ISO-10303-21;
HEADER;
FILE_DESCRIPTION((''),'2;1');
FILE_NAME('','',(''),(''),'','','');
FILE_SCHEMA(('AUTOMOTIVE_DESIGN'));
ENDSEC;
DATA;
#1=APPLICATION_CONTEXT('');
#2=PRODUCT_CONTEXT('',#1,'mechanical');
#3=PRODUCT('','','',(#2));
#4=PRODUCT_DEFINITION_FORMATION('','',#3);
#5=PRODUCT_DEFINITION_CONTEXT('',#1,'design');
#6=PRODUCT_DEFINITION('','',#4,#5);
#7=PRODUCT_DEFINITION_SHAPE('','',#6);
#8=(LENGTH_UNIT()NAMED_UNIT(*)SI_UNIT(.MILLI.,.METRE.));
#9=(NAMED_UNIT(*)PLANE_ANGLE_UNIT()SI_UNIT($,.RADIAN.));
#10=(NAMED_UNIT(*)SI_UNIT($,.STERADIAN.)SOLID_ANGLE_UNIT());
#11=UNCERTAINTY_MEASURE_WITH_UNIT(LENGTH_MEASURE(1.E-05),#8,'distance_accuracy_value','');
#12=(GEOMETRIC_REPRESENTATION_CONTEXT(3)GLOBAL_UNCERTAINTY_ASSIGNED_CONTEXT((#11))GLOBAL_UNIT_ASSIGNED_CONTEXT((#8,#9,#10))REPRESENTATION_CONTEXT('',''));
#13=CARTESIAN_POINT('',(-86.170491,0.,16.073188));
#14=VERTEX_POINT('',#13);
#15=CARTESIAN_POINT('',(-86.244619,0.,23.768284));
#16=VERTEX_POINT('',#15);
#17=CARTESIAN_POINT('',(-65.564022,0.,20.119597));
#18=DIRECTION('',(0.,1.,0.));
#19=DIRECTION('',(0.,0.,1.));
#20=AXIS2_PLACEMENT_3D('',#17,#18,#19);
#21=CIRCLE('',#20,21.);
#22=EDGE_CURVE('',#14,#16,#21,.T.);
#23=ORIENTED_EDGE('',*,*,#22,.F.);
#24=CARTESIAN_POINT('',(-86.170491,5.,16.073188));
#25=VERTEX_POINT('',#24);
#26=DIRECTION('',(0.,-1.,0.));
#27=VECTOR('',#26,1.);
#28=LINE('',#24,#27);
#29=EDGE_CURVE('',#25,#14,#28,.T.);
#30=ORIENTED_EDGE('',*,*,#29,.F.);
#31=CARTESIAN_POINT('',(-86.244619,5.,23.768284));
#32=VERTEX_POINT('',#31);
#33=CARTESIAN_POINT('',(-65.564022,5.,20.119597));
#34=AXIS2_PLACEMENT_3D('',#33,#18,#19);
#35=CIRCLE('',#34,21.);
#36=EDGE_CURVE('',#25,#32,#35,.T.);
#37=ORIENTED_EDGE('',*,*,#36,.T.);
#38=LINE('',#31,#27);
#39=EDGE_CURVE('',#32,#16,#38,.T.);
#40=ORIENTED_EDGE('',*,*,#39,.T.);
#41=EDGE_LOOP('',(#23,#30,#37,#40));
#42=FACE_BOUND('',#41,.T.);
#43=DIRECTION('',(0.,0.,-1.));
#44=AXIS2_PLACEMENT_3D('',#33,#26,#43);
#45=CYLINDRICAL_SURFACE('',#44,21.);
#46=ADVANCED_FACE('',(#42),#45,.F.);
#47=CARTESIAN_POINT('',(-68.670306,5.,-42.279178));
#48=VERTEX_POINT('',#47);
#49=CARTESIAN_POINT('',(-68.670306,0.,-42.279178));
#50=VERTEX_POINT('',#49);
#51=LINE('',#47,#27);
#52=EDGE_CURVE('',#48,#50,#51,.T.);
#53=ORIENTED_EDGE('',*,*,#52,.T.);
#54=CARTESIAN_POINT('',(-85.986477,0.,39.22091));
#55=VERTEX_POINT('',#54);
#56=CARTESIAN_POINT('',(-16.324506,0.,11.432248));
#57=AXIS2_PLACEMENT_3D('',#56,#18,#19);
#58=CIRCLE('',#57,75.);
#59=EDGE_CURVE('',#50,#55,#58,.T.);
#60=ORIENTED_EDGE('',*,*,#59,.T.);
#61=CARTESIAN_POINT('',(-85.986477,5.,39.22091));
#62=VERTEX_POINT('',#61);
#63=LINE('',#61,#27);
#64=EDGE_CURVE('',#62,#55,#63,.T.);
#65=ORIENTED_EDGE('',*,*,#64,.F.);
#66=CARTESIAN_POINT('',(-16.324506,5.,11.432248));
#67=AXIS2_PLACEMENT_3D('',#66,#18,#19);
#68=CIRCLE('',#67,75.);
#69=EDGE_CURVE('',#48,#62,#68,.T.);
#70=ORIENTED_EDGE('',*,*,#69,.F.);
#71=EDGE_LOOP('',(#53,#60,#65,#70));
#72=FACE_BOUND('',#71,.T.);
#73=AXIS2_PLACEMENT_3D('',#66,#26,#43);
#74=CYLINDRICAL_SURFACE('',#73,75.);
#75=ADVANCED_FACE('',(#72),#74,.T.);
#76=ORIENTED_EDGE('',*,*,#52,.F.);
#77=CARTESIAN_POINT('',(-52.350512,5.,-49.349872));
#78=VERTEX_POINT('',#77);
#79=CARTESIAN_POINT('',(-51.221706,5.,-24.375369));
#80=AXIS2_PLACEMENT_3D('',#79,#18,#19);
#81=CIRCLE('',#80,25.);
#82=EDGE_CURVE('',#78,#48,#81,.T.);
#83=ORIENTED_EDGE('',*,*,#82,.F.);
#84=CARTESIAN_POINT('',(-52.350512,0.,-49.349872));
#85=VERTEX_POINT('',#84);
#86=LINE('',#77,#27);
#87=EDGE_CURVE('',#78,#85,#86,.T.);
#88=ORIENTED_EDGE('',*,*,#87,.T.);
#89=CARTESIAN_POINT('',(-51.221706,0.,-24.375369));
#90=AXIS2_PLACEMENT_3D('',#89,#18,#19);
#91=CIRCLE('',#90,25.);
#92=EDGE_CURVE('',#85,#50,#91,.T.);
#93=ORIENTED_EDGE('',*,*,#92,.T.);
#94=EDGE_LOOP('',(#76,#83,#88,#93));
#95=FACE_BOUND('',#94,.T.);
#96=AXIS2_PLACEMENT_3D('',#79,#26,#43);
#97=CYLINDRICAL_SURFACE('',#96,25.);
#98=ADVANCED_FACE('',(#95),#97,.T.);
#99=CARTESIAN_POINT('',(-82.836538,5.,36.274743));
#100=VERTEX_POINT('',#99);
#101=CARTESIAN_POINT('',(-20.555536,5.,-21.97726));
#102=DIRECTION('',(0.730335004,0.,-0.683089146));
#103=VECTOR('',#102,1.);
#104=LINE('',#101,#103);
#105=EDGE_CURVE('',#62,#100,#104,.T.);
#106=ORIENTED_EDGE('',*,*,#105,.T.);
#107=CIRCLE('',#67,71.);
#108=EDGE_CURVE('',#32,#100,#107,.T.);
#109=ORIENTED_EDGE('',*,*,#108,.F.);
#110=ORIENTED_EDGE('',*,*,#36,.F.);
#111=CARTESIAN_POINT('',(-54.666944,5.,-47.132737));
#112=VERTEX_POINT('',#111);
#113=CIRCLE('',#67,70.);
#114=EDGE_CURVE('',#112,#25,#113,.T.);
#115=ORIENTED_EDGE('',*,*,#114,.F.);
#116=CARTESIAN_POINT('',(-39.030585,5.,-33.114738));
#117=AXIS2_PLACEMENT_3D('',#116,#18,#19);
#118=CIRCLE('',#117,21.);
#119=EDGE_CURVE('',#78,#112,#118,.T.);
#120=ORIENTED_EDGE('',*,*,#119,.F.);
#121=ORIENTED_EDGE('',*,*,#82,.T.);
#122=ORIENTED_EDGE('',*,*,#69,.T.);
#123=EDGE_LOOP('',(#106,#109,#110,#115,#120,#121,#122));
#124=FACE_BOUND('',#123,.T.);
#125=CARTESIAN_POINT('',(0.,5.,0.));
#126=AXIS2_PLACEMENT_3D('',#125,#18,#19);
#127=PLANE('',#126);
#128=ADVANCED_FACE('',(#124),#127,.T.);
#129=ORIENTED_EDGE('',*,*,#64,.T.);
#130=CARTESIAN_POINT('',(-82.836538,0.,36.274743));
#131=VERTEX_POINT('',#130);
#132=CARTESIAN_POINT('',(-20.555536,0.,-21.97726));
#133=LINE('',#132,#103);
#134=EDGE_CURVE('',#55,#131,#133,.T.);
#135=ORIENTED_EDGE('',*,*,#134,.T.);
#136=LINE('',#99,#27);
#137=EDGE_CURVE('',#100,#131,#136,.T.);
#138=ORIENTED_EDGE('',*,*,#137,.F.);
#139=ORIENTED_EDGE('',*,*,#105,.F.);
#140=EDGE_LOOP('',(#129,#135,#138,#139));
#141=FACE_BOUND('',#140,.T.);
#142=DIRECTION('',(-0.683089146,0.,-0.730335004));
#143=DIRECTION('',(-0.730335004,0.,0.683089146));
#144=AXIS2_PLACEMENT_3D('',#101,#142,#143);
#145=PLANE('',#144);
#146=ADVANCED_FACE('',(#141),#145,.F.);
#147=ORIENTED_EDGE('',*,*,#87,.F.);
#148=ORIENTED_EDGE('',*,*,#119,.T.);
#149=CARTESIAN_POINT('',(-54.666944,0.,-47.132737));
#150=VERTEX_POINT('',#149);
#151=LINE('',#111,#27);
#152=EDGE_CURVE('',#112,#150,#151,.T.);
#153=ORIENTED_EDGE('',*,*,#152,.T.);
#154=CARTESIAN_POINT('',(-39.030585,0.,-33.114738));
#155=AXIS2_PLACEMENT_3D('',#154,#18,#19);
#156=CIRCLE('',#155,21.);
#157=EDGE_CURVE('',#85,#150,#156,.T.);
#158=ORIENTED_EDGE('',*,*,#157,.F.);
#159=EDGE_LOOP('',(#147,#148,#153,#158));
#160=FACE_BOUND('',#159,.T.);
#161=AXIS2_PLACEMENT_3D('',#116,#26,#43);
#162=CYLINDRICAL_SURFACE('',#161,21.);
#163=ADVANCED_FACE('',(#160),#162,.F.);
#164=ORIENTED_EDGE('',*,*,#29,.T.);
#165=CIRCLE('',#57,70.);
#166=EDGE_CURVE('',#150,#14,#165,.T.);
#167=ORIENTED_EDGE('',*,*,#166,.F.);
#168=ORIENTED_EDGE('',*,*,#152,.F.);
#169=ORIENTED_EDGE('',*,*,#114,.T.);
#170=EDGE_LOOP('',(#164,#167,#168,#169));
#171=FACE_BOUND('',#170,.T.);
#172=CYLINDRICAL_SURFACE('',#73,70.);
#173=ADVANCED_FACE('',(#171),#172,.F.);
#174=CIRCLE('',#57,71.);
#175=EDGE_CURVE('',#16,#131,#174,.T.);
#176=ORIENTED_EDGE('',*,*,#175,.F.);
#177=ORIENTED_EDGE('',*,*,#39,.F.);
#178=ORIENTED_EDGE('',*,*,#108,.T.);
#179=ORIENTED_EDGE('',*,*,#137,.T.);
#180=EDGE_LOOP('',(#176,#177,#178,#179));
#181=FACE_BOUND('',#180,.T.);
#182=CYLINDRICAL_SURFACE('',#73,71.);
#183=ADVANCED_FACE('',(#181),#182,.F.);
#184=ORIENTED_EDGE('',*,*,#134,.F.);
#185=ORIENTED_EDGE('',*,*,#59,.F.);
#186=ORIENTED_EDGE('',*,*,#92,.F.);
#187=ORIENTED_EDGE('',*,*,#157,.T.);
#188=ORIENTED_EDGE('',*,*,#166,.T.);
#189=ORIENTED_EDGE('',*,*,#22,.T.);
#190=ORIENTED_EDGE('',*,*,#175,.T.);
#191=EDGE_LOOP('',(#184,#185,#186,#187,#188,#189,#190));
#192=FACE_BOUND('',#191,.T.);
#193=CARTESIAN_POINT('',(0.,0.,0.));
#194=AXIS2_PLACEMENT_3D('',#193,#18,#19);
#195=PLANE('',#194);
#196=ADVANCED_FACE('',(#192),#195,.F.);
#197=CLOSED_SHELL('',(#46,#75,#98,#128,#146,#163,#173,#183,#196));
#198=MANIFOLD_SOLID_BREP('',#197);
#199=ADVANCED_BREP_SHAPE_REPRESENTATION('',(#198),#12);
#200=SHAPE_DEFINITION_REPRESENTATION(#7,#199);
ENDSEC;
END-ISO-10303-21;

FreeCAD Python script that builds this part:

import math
import FreeCAD as App
import Part
import Sketcher

doc = App.newDocument("Part")
params = doc.addObject("Spreadsheet::Sheet", "Params")
for row, (alias, value) in enumerate([
    ("sketch1_radius", "71 mm"),
    ("sketch1_radius2", "21 mm"),
    ("sketch1_radius3", "70 mm"),
    ("sketch1_radius4", "25 mm"),
    ("sketch1_radius5", "75 mm"),
    ("pad1_length", "5 mm"),
], start=1):
    params.set(f"A{row}", alias)
    params.set(f"B{row}", "=" + value)
    params.setAlias(f"B{row}", alias)

body = doc.addObject("PartDesign::Body", "Body")

# Sketch on XZ plane
sketch1 = doc.addObject("Sketcher::SketchObject", "Sketch")
body.addObject(sketch1)
sketch1.AttachmentSupport = (doc.XZ_Plane, [""])
sketch1.MapMode = "FlatFace"
sketch1.addGeometry([
    Part.LineSegment(App.Vector(-86, 39.2, 0), App.Vector(-82.8, 36.3, 0)),  # 0
    Part.ArcOfCircle(Part.Circle(App.Vector(-16.3, 11.4, 0), App.Vector(0, 0, 1), 71), math.radians(159.52), math.radians(169.99)),  # 1
    Part.ArcOfCircle(Part.Circle(App.Vector(-65.6, 20.1, 0), App.Vector(0, 0, 1), 21), math.radians(170), math.radians(191)),  # 2
    Part.ArcOfCircle(Part.Circle(App.Vector(-16.3, 11.4, 0), App.Vector(0, 0, 1), 70), math.radians(176), math.radians(237)),  # 3
    Part.ArcOfCircle(Part.Circle(App.Vector(-39, -33.1, 0), App.Vector(0, 0, 1), 21), math.radians(-138.12), math.radians(-129.37)),  # 4
    Part.ArcOfCircle(Part.Circle(App.Vector(-51.2, -24.4, 0), App.Vector(0, 0, 1), 25), math.radians(-134), math.radians(-93)),  # 5
    Part.ArcOfCircle(Part.Circle(App.Vector(-16.3, 11.4, 0), App.Vector(0, 0, 1), 75), math.radians(158), math.radians(226)),  # 6
], False)
sketch1.addConstraint([
    Sketcher.Constraint("Coincident", 0, 2, 1, 1),
    Sketcher.Constraint("Tangent", 1, 2, 2, 1),
    Sketcher.Constraint("Coincident", 2, 2, 3, 1),
    Sketcher.Constraint("Coincident", 3, 2, 4, 1),
    Sketcher.Constraint("Coincident", 4, 2, 5, 2),
    Sketcher.Constraint("Tangent", 5, 1, 6, 2),
    Sketcher.Constraint("Coincident", 6, 1, 0, 1),
    Sketcher.Constraint("Coincident", 3, 3, 1, 3),
    Sketcher.Constraint("Coincident", 6, 3, 1, 3),
    Sketcher.Constraint("Equal", 2, 4),
    Sketcher.Constraint("Radius", 1, 71.0),
    Sketcher.Constraint("Radius", 2, 21.0),
    Sketcher.Constraint("Radius", 3, 70.0),
    Sketcher.Constraint("Radius", 5, 25.0),
    Sketcher.Constraint("Radius", 6, 75.0),
    Sketcher.Constraint("DistanceY", 3, 2, 4, 3, 14.017999),
    Sketcher.Constraint("DistanceX", 5, 3, 3, 3, 34.8972),
    Sketcher.Constraint("DistanceY", 4, 3, -1, 1, 33.114738),
    Sketcher.Constraint("DistanceY", 5, 3, -1, 1, 24.375369),
    Sketcher.Constraint("DistanceX", 0, 2, -1, 1, 82.836538),
    Sketcher.Constraint("DistanceX", 1, 2, -1, 1, 86.244619),
    Sketcher.Constraint("DistanceX", 2, 2, -1, 1, 86.170491),
    Sketcher.Constraint("DistanceY", -1, 1, 6, 1, 39.22091),
])
sketch1.setExpression("Constraints[10]", "Params.sketch1_radius")
sketch1.setExpression("Constraints[11]", "Params.sketch1_radius2")
sketch1.setExpression("Constraints[12]", "Params.sketch1_radius3")
sketch1.setExpression("Constraints[13]", "Params.sketch1_radius4")
sketch1.setExpression("Constraints[14]", "Params.sketch1_radius5")
pad1 = doc.addObject("PartDesign::Pad", "Pad")
body.addObject(pad1)
pad1.Profile = sketch1
pad1.setExpression("Length", "Params.pad1_length")
pad1.Reversed = True

doc.recompute()
